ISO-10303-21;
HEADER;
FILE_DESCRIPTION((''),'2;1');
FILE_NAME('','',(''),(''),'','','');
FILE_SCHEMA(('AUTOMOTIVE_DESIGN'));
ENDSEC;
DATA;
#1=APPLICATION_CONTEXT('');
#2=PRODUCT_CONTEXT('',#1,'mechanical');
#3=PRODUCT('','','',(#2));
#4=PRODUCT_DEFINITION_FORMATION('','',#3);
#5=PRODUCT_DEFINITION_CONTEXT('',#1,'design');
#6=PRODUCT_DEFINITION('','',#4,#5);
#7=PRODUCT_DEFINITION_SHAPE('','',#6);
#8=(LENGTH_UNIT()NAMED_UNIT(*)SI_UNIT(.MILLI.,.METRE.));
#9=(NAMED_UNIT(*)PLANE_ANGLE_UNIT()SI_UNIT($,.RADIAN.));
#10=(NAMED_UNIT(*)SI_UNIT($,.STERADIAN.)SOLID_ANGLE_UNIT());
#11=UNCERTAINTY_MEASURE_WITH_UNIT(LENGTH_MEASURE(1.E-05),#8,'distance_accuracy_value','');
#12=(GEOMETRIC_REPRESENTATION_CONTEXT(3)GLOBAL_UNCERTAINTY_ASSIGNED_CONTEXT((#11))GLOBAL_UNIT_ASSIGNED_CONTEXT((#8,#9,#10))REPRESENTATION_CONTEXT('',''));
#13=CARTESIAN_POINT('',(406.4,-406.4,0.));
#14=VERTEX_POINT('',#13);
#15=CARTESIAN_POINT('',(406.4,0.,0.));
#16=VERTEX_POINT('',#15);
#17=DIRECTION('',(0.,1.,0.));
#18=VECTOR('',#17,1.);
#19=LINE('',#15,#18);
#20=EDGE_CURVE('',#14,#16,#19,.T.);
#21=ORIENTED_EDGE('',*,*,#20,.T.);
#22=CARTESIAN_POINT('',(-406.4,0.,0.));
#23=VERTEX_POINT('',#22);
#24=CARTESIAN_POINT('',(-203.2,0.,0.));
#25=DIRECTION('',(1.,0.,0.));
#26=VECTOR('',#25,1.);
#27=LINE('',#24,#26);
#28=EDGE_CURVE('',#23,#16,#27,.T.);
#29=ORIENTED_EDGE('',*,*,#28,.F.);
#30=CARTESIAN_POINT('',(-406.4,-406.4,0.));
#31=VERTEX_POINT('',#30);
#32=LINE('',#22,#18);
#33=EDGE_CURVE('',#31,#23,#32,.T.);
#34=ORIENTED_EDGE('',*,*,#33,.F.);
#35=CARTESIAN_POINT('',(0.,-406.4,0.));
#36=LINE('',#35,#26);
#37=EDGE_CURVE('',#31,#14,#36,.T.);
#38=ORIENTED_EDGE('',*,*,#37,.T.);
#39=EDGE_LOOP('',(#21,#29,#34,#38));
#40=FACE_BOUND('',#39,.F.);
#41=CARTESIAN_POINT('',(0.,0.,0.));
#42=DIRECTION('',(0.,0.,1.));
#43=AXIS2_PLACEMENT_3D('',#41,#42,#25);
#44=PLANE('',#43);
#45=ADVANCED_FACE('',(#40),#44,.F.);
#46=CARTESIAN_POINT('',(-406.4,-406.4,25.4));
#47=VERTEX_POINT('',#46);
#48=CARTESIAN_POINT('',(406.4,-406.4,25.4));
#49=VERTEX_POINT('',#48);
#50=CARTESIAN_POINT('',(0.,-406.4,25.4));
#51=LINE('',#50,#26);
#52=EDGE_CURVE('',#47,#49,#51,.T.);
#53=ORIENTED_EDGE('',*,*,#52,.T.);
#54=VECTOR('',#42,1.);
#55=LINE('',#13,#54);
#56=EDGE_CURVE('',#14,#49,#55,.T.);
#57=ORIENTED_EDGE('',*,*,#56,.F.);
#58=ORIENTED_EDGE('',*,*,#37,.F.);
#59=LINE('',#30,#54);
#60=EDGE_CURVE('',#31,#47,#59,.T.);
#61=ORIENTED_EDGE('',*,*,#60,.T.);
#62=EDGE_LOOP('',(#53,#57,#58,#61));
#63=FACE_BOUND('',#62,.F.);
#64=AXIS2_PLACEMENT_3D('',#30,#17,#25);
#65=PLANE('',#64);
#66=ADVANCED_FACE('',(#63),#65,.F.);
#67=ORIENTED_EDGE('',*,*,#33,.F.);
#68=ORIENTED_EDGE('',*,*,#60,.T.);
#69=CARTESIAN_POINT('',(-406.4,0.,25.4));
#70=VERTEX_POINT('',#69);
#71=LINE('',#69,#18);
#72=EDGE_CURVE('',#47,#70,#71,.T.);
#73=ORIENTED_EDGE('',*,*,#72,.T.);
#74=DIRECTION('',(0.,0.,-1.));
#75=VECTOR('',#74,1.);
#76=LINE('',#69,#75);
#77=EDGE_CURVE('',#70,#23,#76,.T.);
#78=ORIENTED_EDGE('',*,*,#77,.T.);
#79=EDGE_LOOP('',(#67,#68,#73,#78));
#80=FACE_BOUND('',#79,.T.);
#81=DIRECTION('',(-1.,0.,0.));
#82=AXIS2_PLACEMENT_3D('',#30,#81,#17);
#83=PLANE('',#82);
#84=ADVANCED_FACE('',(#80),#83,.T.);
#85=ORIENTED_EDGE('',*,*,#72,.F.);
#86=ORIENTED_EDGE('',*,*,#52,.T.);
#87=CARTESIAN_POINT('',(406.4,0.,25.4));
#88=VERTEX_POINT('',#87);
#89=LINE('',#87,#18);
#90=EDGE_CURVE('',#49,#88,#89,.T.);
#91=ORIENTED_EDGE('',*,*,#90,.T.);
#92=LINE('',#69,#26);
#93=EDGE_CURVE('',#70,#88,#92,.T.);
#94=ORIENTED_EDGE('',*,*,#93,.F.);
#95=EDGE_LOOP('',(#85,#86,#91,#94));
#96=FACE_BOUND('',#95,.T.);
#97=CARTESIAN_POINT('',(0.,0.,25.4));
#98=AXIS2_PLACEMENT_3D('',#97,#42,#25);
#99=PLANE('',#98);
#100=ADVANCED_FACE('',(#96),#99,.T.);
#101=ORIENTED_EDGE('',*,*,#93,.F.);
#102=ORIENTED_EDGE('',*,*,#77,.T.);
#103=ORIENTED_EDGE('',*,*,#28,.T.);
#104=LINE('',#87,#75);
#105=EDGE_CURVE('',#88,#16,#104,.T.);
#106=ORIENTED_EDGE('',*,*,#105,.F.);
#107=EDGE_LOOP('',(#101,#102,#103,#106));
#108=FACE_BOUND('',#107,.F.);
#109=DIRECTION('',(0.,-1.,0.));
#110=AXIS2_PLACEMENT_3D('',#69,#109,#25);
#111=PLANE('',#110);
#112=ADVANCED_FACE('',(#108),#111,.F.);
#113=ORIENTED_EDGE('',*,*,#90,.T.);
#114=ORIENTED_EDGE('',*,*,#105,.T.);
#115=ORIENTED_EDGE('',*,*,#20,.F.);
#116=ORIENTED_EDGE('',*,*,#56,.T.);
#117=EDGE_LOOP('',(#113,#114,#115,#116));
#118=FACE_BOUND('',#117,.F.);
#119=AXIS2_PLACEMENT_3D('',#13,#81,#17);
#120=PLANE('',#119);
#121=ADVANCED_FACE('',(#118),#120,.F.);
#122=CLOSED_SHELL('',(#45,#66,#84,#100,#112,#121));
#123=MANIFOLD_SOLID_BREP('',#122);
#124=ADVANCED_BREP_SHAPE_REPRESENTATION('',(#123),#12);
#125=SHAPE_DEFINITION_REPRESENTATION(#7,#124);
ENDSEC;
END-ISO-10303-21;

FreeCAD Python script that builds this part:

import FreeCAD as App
import Part
import Sketcher

V = App.Vector
Q = App.Units.Quantity


def add_polygon(sketch, points):
    """Adds a closed chain of lines whose ends are joined by coincident constraints."""
    first, n = sketch.GeometryCount, len(points)
    for a, b in zip(points, points[1:] + points[:1]):
        sketch.addGeometry(Part.LineSegment(App.Vector(*a, 0), App.Vector(*b, 0)), False)
    for i in range(n):
        sketch.addConstraint(Sketcher.Constraint("Coincident", first + i, 2, first + (i + 1) % n, 1))

doc = App.newDocument("Part")
body = doc.addObject("PartDesign::Body", "Body")

# Sketch on XY plane
sketch1 = body.newObject("Sketcher::SketchObject", "Sketch")
sketch1.AttachmentSupport = (doc.getObject("XY_Plane"), [""])
sketch1.MapMode = "FlatFace"
add_polygon(sketch1, [(-406, 406), (-406, -406), (406, -406), (406, 406)])  # lines 0-3
sketch1.addConstraint(Sketcher.Constraint("Vertical", 0))
sketch1.addConstraint(Sketcher.Constraint("Horizontal", 1))
sketch1.addConstraint(Sketcher.Constraint("Vertical", 2))
sketch1.addConstraint(Sketcher.Constraint("Horizontal", 3))
sketch1.addConstraint(Sketcher.Constraint("Symmetric", 0, 2, 2, 2, -1, 1))
sketch1.addConstraint(Sketcher.Constraint("Equal", 3, 0))
sketch1.addConstraint(Sketcher.Constraint("DistanceX", 1, 1, 1, 2, Q("32 in")))
pad1 = body.newObject("PartDesign::Pad", "Pad")
pad1.Profile = sketch1
pad1.Length = Q("1 in")

# Sketch on XY plane
sketch2 = body.newObject("Sketcher::SketchObject", "Sketch001")
sketch2.AttachmentSupport = (doc.getObject("XY_Plane"), [""])
sketch2.MapMode = "FlatFace"
sketch2.AttachmentOffset = App.Placement(V(0, 0, 1 * 25.4), App.Rotation())
add_polygon(sketch2, [(406, 406), (-406, 406), (-406, 0), (406, 0)])  # lines 0-3
sketch2.addConstraint(Sketcher.Constraint("Horizontal", 0))
sketch2.addConstraint(Sketcher.Constraint("Vertical", 1))
sketch2.addConstraint(Sketcher.Constraint("Horizontal", 2))
sketch2.addConstraint(Sketcher.Constraint("Vertical", 3))
sketch2.addConstraint(Sketcher.Constraint("Symmetric", 1, 2, 2, 2, -1, 1))
sketch2.addConstraint(Sketcher.Constraint("DistanceX", 0, 2, 0, 1, Q("32 in")))
sketch2.addConstraint(Sketcher.Constraint("DistanceY", 1, 2, 1, 1, Q("16 in")))
pocket1 = body.newObject("PartDesign::Pocket", "Pocket")
pocket1.Profile = sketch2
pocket1.Type = "ThroughAll"

doc.recompute()
